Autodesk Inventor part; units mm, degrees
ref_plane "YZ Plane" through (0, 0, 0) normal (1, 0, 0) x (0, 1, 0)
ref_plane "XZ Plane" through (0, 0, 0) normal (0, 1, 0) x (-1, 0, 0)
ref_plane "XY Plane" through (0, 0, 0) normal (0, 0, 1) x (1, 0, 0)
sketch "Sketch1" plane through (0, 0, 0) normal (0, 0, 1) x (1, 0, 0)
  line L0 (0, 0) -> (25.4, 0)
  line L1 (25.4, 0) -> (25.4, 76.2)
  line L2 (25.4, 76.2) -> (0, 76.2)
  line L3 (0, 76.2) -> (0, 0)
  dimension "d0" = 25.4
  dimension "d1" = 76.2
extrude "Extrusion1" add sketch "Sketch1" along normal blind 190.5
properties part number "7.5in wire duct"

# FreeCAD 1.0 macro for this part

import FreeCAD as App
import Part
import Sketcher

V = App.Vector
Q = App.Units.Quantity

doc = App.newDocument("Part")
params = doc.addObject("Spreadsheet::Sheet", "Params")
for row, (alias, value) in enumerate([
    ("sketch1_width", "1 in"),
    ("sketch1_height", "3 in"),
    ("pad1_length", "7.5 in"),
], start=1):
    params.set(f"A{row}", alias)
    params.set(f"B{row}", "=" + value)
    params.setAlias(f"B{row}", alias)

body = doc.addObject("PartDesign::Body", "Body")

sketch1 = doc.addObject("Sketcher::SketchObject", "Sketch")
body.addObject(sketch1)
sketch1.AttachmentSupport = (doc.XY_Plane, [""])
sketch1.MapMode = "FlatFace"
sketch1.addGeometry(Part.LineSegment(V(0, 76, 0), V(0, 0, 0)), False)
sketch1.addGeometry(Part.LineSegment(V(0, 0, 0), V(25, 0, 0)), False)
sketch1.addGeometry(Part.LineSegment(V(25, 0, 0), V(25, 76, 0)), False)
sketch1.addGeometry(Part.LineSegment(V(25, 76, 0), V(0, 76, 0)), False)
sketch1.addConstraint(Sketcher.Constraint("Coincident", 0, 2, 1, 1))
sketch1.addConstraint(Sketcher.Constraint("Coincident", 1, 2, 2, 1))
sketch1.addConstraint(Sketcher.Constraint("Coincident", 2, 2, 3, 1))
sketch1.addConstraint(Sketcher.Constraint("Coincident", 3, 2, 0, 1))
sketch1.addConstraint(Sketcher.Constraint("Vertical", 0))
sketch1.addConstraint(Sketcher.Constraint("Horizontal", 1))
sketch1.addConstraint(Sketcher.Constraint("Vertical", 2))
sketch1.addConstraint(Sketcher.Constraint("Horizontal", 3))
sketch1.addConstraint(Sketcher.Constraint("Coincident", 0, 2, -1, 1))
sketch1.addConstraint(Sketcher.Constraint("DistanceX", 1, 1, 1, 2, Q("1 in")))
sketch1.addConstraint(Sketcher.Constraint("DistanceY", 0, 2, 0, 1, Q("3 in")))
sketch1.setExpression("Constraints[9]", "Params.sketch1_width")
sketch1.setExpression("Constraints[10]", "Params.sketch1_height")
pad1 = doc.addObject("PartDesign::Pad", "Pad")
body.addObject(pad1)
pad1.Profile = sketch1
pad1.setExpression("Length", "Params.pad1_length")

doc.recompute()
